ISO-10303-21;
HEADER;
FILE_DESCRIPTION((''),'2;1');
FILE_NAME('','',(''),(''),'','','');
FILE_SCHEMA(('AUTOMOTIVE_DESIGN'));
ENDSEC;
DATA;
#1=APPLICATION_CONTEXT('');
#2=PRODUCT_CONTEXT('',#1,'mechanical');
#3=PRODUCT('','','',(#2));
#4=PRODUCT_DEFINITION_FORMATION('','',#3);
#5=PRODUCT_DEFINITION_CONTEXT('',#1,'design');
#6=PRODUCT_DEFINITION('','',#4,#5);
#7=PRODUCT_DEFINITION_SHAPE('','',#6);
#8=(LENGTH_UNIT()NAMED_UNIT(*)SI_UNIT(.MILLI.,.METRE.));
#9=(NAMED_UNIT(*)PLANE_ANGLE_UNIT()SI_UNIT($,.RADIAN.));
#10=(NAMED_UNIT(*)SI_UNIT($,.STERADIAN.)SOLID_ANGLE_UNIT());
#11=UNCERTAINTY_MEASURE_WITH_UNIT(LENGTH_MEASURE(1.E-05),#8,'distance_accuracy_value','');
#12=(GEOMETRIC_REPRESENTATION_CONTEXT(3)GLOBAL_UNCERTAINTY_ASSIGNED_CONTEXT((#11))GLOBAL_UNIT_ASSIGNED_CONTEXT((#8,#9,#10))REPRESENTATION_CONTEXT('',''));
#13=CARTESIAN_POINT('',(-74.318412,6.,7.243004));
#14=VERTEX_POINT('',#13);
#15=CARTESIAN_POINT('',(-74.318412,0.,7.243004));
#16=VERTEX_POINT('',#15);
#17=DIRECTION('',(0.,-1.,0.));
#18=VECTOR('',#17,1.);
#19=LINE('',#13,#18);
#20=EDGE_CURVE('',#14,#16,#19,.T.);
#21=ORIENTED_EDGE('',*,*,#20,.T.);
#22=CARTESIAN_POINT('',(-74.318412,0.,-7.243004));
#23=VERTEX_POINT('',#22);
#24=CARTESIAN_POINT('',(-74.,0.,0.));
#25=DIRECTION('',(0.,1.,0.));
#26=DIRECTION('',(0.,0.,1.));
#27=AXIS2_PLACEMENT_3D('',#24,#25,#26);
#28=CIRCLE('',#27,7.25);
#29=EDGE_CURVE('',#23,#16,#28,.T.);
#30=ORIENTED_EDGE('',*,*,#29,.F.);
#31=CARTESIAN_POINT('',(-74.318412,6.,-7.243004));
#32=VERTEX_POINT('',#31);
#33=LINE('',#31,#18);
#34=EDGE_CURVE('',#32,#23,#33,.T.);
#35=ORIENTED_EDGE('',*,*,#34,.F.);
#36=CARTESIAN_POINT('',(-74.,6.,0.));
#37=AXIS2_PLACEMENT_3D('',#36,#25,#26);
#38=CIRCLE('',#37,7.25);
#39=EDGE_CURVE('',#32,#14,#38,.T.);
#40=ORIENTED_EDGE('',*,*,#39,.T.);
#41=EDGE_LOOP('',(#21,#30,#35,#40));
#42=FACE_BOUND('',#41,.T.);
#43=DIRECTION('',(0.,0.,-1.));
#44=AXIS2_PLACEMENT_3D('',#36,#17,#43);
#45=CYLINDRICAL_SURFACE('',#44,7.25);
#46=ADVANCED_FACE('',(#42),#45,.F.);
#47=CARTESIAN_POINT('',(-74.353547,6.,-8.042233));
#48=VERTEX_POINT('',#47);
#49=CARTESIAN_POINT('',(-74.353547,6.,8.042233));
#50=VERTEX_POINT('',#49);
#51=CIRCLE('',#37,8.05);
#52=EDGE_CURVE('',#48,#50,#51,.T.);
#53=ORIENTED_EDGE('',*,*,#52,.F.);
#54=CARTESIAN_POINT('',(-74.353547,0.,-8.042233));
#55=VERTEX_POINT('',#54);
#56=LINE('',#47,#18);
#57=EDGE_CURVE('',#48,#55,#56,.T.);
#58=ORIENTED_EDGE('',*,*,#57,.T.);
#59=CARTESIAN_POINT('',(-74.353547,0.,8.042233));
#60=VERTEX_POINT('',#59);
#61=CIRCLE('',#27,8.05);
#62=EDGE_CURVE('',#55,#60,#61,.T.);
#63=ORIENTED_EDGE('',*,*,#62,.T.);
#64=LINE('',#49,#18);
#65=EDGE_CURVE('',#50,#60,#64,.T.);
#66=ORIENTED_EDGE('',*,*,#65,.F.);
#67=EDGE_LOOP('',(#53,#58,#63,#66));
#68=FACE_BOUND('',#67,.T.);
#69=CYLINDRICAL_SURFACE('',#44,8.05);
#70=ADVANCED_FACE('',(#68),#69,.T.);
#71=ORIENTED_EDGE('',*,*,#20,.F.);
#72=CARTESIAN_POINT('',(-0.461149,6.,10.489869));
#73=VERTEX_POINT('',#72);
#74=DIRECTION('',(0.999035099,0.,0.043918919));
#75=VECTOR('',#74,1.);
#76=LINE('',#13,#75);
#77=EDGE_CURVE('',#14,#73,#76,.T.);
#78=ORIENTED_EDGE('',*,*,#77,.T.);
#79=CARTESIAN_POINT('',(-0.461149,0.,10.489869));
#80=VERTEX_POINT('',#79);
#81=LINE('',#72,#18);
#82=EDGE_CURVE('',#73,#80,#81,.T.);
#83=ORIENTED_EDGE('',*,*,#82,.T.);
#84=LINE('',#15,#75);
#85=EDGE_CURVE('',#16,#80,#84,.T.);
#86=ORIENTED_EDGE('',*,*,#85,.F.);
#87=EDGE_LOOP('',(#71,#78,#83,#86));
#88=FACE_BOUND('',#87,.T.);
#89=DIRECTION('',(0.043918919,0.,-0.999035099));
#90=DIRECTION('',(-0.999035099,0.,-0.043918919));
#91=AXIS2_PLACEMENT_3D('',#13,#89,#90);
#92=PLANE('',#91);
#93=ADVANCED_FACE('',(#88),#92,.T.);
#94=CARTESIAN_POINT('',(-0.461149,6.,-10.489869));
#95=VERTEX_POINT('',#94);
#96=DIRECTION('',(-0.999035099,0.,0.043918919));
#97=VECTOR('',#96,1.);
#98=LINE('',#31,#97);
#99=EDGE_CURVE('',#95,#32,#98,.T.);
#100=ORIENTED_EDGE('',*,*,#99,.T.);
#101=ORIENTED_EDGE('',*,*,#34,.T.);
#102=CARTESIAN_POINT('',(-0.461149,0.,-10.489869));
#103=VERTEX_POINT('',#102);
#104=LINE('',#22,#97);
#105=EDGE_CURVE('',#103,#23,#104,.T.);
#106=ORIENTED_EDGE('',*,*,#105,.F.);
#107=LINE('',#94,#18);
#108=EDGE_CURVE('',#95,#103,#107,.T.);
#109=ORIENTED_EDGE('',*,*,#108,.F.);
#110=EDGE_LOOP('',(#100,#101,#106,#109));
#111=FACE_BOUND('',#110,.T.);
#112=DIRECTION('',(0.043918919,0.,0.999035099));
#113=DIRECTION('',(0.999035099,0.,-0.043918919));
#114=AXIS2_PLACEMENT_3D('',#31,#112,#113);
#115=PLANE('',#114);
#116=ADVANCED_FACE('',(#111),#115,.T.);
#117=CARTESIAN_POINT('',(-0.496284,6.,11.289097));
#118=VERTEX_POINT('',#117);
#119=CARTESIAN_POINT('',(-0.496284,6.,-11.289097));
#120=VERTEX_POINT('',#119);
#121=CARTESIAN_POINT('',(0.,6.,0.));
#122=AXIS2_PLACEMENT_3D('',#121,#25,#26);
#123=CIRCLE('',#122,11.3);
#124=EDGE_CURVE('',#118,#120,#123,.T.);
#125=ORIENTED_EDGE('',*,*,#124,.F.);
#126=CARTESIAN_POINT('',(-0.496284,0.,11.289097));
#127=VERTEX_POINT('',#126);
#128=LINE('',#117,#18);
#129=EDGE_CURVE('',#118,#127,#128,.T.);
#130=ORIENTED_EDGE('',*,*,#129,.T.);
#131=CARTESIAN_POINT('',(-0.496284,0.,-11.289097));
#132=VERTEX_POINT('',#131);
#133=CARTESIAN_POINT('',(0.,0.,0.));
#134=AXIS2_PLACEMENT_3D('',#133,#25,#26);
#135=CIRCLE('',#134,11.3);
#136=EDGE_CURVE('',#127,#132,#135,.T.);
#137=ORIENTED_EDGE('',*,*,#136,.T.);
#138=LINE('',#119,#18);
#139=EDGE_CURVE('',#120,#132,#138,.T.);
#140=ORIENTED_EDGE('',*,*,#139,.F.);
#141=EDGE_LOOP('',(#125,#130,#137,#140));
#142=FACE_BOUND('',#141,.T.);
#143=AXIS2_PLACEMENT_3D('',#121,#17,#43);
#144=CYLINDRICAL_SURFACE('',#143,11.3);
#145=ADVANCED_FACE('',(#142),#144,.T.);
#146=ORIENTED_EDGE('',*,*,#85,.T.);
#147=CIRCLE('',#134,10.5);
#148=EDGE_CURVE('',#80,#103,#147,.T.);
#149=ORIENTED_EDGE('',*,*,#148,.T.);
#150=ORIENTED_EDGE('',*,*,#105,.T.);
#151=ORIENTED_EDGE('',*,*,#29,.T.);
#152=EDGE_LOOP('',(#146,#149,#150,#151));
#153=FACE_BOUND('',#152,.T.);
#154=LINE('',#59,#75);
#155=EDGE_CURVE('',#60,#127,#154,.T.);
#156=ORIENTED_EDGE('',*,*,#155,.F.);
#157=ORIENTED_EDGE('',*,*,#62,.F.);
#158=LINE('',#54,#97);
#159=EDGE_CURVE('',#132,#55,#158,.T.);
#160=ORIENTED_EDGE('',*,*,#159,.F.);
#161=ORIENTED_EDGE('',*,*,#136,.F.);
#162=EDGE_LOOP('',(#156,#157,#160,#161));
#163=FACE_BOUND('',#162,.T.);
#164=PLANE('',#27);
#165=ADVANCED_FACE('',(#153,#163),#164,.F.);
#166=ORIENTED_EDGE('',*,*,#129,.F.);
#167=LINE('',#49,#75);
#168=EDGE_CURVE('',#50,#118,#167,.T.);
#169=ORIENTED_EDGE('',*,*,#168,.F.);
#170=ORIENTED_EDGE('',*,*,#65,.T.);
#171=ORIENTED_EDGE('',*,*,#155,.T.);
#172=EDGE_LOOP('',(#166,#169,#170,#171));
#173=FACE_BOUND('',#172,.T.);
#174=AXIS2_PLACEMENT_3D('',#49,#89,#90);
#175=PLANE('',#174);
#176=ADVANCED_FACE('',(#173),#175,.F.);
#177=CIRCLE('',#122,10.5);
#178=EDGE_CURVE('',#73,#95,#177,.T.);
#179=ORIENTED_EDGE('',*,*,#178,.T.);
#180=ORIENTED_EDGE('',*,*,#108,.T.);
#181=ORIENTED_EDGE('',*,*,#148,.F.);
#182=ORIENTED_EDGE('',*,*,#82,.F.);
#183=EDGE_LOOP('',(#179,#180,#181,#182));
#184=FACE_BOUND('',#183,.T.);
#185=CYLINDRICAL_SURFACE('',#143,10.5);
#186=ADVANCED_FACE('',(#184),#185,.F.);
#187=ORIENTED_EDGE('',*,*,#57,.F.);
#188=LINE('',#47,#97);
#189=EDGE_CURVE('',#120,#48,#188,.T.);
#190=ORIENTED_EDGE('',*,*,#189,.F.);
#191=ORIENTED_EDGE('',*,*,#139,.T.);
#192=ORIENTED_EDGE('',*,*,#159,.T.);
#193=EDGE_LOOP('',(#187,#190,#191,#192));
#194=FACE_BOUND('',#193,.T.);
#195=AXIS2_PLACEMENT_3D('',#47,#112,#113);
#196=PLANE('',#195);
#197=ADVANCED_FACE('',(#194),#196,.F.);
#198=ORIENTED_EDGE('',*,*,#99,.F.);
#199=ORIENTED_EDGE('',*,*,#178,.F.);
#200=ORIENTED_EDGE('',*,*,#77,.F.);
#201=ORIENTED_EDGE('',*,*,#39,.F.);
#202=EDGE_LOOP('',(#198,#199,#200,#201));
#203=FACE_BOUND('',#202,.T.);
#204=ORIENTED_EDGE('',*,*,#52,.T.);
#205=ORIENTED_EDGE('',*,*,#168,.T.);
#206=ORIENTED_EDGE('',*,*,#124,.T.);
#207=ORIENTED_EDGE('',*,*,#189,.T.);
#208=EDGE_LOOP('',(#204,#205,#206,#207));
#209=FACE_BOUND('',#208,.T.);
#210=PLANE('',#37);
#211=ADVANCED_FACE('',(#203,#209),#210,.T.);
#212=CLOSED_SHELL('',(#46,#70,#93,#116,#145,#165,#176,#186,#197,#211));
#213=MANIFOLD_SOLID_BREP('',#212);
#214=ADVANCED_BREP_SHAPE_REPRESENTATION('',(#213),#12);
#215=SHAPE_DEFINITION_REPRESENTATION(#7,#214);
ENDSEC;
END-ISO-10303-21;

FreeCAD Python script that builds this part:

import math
import FreeCAD as App
import Part
import Sketcher

V = App.Vector
Q = App.Units.Quantity

doc = App.newDocument("Part")
body = doc.addObject("PartDesign::Body", "Body")

# Sketch on XZ plane
sketch1 = body.newObject("Sketcher::SketchObject", "Sketch")
sketch1.AttachmentSupport = (doc.getObject("XZ_Plane"), [""])
sketch1.MapMode = "FlatFace"
sketch1.addGeometry(Part.LineSegment(V(0, -11, 0), V(-74, -8, 0)), False)
sketch1.addGeometry(Part.ArcOfCircle(Part.Circle(V(-74, 0, 0), V(0, 0, 1), 8), math.radians(93), math.radians(267)), False)
sketch1.addGeometry(Part.LineSegment(V(-74, 8, 0), V(0, 11, 0)), False)
sketch1.addGeometry(Part.ArcOfCircle(Part.Circle(V(0, 0, 0), V(0, 0, 1), 11), math.radians(-93), math.radians(93)), False)
sketch1.addGeometry(Part.LineSegment(V(-74, -7, 0), V(0, -10, 0)), False)
sketch1.addGeometry(Part.ArcOfCircle(Part.Circle(V(0, 0, 0), V(0, 0, 1), 10), math.radians(-93), math.radians(93)), False)
sketch1.addGeometry(Part.LineSegment(V(0, 10, 0), V(-74, 7, 0)), False)
sketch1.addGeometry(Part.ArcOfCircle(Part.Circle(V(-74, 0, 0), V(0, 0, 1), 7), math.radians(93), math.radians(267)), False)
sketch1.addConstraint(Sketcher.Constraint("Tangent", 0, 2, 1, 2))
sketch1.addConstraint(Sketcher.Constraint("Tangent", 1, 1, 2, 1))
sketch1.addConstraint(Sketcher.Constraint("Tangent", 2, 2, 3, 2))
sketch1.addConstraint(Sketcher.Constraint("Tangent", 3, 1, 0, 1))
sketch1.addConstraint(Sketcher.Constraint("Tangent", 4, 2, 5, 1))
sketch1.addConstraint(Sketcher.Constraint("Tangent", 5, 2, 6, 1))
sketch1.addConstraint(Sketcher.Constraint("Tangent", 6, 2, 7, 1))
sketch1.addConstraint(Sketcher.Constraint("Tangent", 7, 2, 4, 1))
sketch1.addConstraint(Sketcher.Constraint("Coincident", 3, 3, -1, 1))
sketch1.addConstraint(Sketcher.Constraint("Coincident", 5, 3, -1, 1))
sketch1.addConstraint(Sketcher.Constraint("Coincident", 7, 3, 1, 3))
sketch1.addConstraint(Sketcher.Constraint("PointOnObject", 1, 3, -1))
sketch1.addConstraint(Sketcher.Constraint("Parallel", 0, 4))
sketch1.addConstraint(Sketcher.Constraint("Radius", 3, Q("11.3 mm")))
sketch1.addConstraint(Sketcher.Constraint("Radius", 5, Q("10.5 mm")))
sketch1.addConstraint(Sketcher.Constraint("Radius", 1, Q("8.05 mm")))
sketch1.addConstraint(Sketcher.Constraint("DistanceX", 1, 3, -1, 1, Q("74 mm")))
pad1 = body.newObject("PartDesign::Pad", "Pad")
pad1.Profile = sketch1
pad1.Length = 6
pad1.Reversed = True

doc.recompute()
